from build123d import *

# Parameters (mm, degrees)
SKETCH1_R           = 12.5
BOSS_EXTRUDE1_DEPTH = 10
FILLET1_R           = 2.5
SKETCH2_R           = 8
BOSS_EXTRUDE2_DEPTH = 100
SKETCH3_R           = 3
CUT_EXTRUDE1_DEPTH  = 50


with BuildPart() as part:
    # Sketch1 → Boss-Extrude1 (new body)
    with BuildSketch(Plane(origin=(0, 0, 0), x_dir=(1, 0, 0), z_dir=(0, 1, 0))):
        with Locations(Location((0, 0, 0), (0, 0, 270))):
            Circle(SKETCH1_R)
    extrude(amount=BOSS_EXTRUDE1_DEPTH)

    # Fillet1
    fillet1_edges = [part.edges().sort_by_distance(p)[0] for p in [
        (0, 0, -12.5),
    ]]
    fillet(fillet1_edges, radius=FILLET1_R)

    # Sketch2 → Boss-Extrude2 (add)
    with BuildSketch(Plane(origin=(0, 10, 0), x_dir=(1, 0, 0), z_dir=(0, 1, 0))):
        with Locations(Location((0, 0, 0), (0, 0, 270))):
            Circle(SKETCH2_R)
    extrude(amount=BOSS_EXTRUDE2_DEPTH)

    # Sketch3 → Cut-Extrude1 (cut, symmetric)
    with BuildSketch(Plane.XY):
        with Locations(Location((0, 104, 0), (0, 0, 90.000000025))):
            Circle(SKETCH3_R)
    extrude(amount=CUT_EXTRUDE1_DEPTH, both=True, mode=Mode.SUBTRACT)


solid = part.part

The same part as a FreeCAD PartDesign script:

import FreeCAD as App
import Part
import Sketcher


def edges_at(feature, points):
    """Names of the edges that pass closest to the given points."""
    edges = feature.Shape.Edges
    near = lambda p: min(range(len(edges)), key=lambda i: edges[i].distToShape(Part.Vertex(*p))[0])
    return sorted({f"Edge{near(p) + 1}" for p in points})

doc = App.newDocument("Part")
params = doc.addObject("Spreadsheet::Sheet", "Params")
for row, (alias, value) in enumerate([
    ("sketch1_diameter", "25 mm"),
    ("pad1_length", "10 mm"),
    ("fillet_radius", "2.5 mm"),
    ("sketch2_diameter", "16 mm"),
    ("pad2_length", "100 mm"),
    ("sketch3_diameter", "6 mm"),
    ("pocket1_length", "100 mm"),
], start=1):
    params.set(f"A{row}", alias)
    params.set(f"B{row}", "=" + value)
    params.setAlias(f"B{row}", alias)

body = doc.addObject("PartDesign::Body", "Body")

# Sketch on XZ plane
sketch1 = body.newObject("Sketcher::SketchObject", "Sketch")
sketch1.AttachmentSupport = (doc.getObject("XZ_Plane"), [""])
sketch1.MapMode = "FlatFace"
sketch1.addGeometry(Part.Circle(App.Vector(0, 0, 0), App.Vector(0, 0, 1), 12.5), False)
sketch1.addConstraint([
    Sketcher.Constraint("Coincident", 0, 3, -1, 1),
    Sketcher.Constraint("Diameter", 0, 25.0),
])
sketch1.setExpression("Constraints[1]", "Params.sketch1_diameter")
pad1 = body.newObject("PartDesign::Pad", "Pad")
pad1.Profile = sketch1
pad1.setExpression("Length", "Params.pad1_length")
pad1.Reversed = True
doc.recompute()

fillet = body.newObject("PartDesign::Fillet", "Fillet")
fillet.Base = (pad1, edges_at(pad1, [(0, 0, -12.5)]))
fillet.setExpression("Radius", "Params.fillet_radius")

# Sketch on XZ plane
sketch2 = body.newObject("Sketcher::SketchObject", "Sketch001")
sketch2.AttachmentSupport = (doc.getObject("XZ_Plane"), [""])
sketch2.MapMode = "FlatFace"
sketch2.AttachmentOffset = App.Placement(App.Vector(0, 0, -10), App.Rotation())
sketch2.addGeometry(Part.Circle(App.Vector(0, 0, 0), App.Vector(0, 0, 1), 8), False)
sketch2.addConstraint([
    Sketcher.Constraint("Coincident", 0, 3, -1, 1),
    Sketcher.Constraint("Diameter", 0, 16.0),
])
sketch2.setExpression("Constraints[1]", "Params.sketch2_diameter")
pad2 = body.newObject("PartDesign::Pad", "Pad001")
pad2.Profile = sketch2
pad2.setExpression("Length", "Params.pad2_length")
pad2.Reversed = True

# Sketch on XY plane
sketch3 = body.newObject("Sketcher::SketchObject", "Sketch002")
sketch3.AttachmentSupport = (doc.getObject("XY_Plane"), [""])
sketch3.MapMode = "FlatFace"
sketch3.addGeometry(Part.Circle(App.Vector(0, 104, 0), App.Vector(0, 0, 1), 3), False)
sketch3.addConstraint([
    Sketcher.Constraint("PointOnObject", 0, 3, -2),
    Sketcher.Constraint("Diameter", 0, 6.0),
    Sketcher.Constraint("DistanceY", -1, 1, 0, 3, 104.0),
])
sketch3.setExpression("Constraints[1]", "Params.sketch3_diameter")
pocket1 = body.newObject("PartDesign::Pocket", "Pocket")
pocket1.Profile = sketch3
pocket1.setExpression("Length", "Params.pocket1_length")
pocket1.Midplane = True

doc.recompute()
